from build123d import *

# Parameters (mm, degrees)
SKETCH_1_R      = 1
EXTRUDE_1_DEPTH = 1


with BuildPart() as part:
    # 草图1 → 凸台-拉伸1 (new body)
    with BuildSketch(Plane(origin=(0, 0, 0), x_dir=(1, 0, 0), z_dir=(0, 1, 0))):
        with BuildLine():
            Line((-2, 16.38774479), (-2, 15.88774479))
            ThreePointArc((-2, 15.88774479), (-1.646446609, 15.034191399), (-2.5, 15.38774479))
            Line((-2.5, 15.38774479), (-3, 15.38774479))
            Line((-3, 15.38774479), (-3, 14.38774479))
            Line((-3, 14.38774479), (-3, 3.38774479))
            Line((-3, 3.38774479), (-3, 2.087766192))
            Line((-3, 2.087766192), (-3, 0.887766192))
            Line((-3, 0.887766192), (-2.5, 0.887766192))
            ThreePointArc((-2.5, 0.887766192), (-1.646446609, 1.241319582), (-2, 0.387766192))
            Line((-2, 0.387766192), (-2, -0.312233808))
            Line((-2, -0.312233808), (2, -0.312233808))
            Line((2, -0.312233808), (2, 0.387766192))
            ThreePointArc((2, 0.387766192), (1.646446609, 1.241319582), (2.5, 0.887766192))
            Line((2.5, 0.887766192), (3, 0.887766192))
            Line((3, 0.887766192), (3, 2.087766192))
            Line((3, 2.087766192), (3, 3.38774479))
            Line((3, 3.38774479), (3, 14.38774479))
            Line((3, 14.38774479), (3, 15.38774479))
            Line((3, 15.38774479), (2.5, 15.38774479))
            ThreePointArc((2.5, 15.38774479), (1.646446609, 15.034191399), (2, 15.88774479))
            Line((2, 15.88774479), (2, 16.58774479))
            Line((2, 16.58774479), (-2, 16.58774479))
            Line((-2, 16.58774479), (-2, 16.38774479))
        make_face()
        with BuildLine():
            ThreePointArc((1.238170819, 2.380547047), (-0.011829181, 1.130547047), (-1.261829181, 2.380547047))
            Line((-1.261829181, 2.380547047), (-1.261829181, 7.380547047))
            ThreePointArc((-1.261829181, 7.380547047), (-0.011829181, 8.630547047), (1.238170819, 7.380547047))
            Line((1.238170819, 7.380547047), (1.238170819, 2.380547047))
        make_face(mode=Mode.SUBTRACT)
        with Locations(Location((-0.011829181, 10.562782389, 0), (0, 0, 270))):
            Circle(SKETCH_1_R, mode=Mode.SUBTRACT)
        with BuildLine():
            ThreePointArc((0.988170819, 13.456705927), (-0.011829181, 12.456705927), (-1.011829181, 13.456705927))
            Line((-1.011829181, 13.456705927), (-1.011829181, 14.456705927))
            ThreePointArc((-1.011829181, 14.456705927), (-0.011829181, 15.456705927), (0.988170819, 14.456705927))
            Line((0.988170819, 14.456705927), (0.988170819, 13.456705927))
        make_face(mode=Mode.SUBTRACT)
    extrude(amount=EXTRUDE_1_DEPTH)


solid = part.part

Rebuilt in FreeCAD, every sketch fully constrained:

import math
import FreeCAD as App
import Part
import Sketcher
from FreeCAD import Vector
Q = App.Units.Quantity

doc = App.newDocument("Part")
body = doc.addObject("PartDesign::Body", "Body")

sketch1 = body.newObject("Sketcher::SketchObject", "Sketch")
sketch1.AttachmentSupport = (doc.getObject("XZ_Plane"), [""])
sketch1.MapMode = "FlatFace"
sketch1.addGeometry(Part.ArcOfCircle(Part.Circle(Vector(-2, -15.4, 0), Vector(0, 0, 1), 0.5), math.radians(-90), math.radians(180)), False)
sketch1.addGeometry(Part.LineSegment(Vector(-2.5, -15.4, 0), Vector(-3, -15.4, 0)), False)
sketch1.addGeometry(Part.LineSegment(Vector(-3, -15.4, 0), Vector(-3, -0.9, 0)), False)
sketch1.addGeometry(Part.LineSegment(Vector(-3, -0.9, 0), Vector(-2.5, -0.9, 0)), False)
sketch1.addGeometry(Part.ArcOfCircle(Part.Circle(Vector(-2, -0.9, 0), Vector(0, 0, 1), 0.5), math.radians(180), math.radians(450)), False)
sketch1.addGeometry(Part.LineSegment(Vector(-2, -0.4, 0), Vector(-2, 0.3, 0)), False)
sketch1.addGeometry(Part.LineSegment(Vector(-2, 0.3, 0), Vector(2, 0.3, 0)), False)
sketch1.addGeometry(Part.LineSegment(Vector(2, 0.3, 0), Vector(2, -0.4, 0)), False)
sketch1.addGeometry(Part.ArcOfCircle(Part.Circle(Vector(2, -0.9, 0), Vector(0, 0, 1), 0.5), math.radians(90), math.radians(360)), False)
sketch1.addGeometry(Part.LineSegment(Vector(2.5, -0.9, 0), Vector(3, -0.9, 0)), False)
sketch1.addGeometry(Part.LineSegment(Vector(3, -0.9, 0), Vector(3, -15.4, 0)), False)
sketch1.addGeometry(Part.LineSegment(Vector(3, -15.4, 0), Vector(2.5, -15.4, 0)), False)
sketch1.addGeometry(Part.ArcOfCircle(Part.Circle(Vector(2, -15.4, 0), Vector(0, 0, 1), 0.5), math.radians(0), math.radians(270)), False)
sketch1.addGeometry(Part.LineSegment(Vector(2, -15.9, 0), Vector(2, -16.6, 0)), False)
sketch1.addGeometry(Part.LineSegment(Vector(2, -16.6, 0), Vector(-2, -16.6, 0)), False)
sketch1.addGeometry(Part.LineSegment(Vector(-2, -16.6, 0), Vector(-2, -15.9, 0)), False)
sketch1.addGeometry(Part.LineSegment(Vector(1.2, -7.4, 0), Vector(1.2, -2.4, 0)), False)
sketch1.addGeometry(Part.ArcOfCircle(Part.Circle(Vector(0, -2.4, 0), Vector(0, 0, 1), 1.2), math.radians(0), math.radians(180)), False)
sketch1.addGeometry(Part.LineSegment(Vector(-1.3, -2.4, 0), Vector(-1.3, -7.4, 0)), False)
sketch1.addGeometry(Part.ArcOfCircle(Part.Circle(Vector(0, -7.4, 0), Vector(0, 0, 1), 1.2), math.radians(180), math.radians(360)), False)
sketch1.addGeometry(Part.Circle(Vector(0, -10.6, 0), Vector(0, 0, 1), 1), False)
sketch1.addGeometry(Part.LineSegment(Vector(1, -14.5, 0), Vector(1, -13.5, 0)), False)
sketch1.addGeometry(Part.ArcOfCircle(Part.Circle(Vector(0, -13.5, 0), Vector(0, 0, 1), 1), math.radians(0), math.radians(180)), False)
sketch1.addGeometry(Part.LineSegment(Vector(-1, -13.5, 0), Vector(-1, -14.5, 0)), False)
sketch1.addGeometry(Part.ArcOfCircle(Part.Circle(Vector(0, -14.5, 0), Vector(0, 0, 1), 1), math.radians(180), math.radians(360)), False)
sketch1.addConstraint(Sketcher.Constraint("Coincident", 0, 2, 1, 1))
sketch1.addConstraint(Sketcher.Constraint("Coincident", 1, 2, 2, 1))
sketch1.addConstraint(Sketcher.Constraint("Coincident", 2, 2, 3, 1))
sketch1.addConstraint(Sketcher.Constraint("Coincident", 3, 2, 4, 1))
sketch1.addConstraint(Sketcher.Constraint("Coincident", 4, 2, 5, 1))
sketch1.addConstraint(Sketcher.Constraint("Coincident", 5, 2, 6, 1))
sketch1.addConstraint(Sketcher.Constraint("Coincident", 6, 2, 7, 1))
sketch1.addConstraint(Sketcher.Constraint("Coincident", 7, 2, 8, 1))
sketch1.addConstraint(Sketcher.Constraint("Coincident", 8, 2, 9, 1))
sketch1.addConstraint(Sketcher.Constraint("Coincident", 9, 2, 10, 1))
sketch1.addConstraint(Sketcher.Constraint("Coincident", 10, 2, 11, 1))
sketch1.addConstraint(Sketcher.Constraint("Coincident", 11, 2, 12, 1))
sketch1.addConstraint(Sketcher.Constraint("Coincident", 12, 2, 13, 1))
sketch1.addConstraint(Sketcher.Constraint("Coincident", 13, 2, 14, 1))
sketch1.addConstraint(Sketcher.Constraint("Coincident", 14, 2, 15, 1))
sketch1.addConstraint(Sketcher.Constraint("Coincident", 15, 2, 0, 1))
sketch1.addConstraint(Sketcher.Constraint("Tangent", 16, 2, 17, 1))
sketch1.addConstraint(Sketcher.Constraint("Tangent", 17, 2, 18, 1))
sketch1.addConstraint(Sketcher.Constraint("Tangent", 18, 2, 19, 1))
sketch1.addConstraint(Sketcher.Constraint("Tangent", 19, 2, 16, 1))
sketch1.addConstraint(Sketcher.Constraint("Tangent", 21, 2, 22, 1))
sketch1.addConstraint(Sketcher.Constraint("Tangent", 22, 2, 23, 1))
sketch1.addConstraint(Sketcher.Constraint("Tangent", 23, 2, 24, 1))
sketch1.addConstraint(Sketcher.Constraint("Tangent", 24, 2, 21, 1))
sketch1.addConstraint(Sketcher.Constraint("Horizontal", 1))
sketch1.addConstraint(Sketcher.Constraint("Vertical", 2))
sketch1.addConstraint(Sketcher.Constraint("Horizontal", 3))
sketch1.addConstraint(Sketcher.Constraint("Vertical", 5))
sketch1.addConstraint(Sketcher.Constraint("Horizontal", 6))
sketch1.addConstraint(Sketcher.Constraint("Vertical", 7))
sketch1.addConstraint(Sketcher.Constraint("Horizontal", 9))
sketch1.addConstraint(Sketcher.Constraint("Vertical", 10))
sketch1.addConstraint(Sketcher.Constraint("Horizontal", 11))
sketch1.addConstraint(Sketcher.Constraint("Vertical", 13))
sketch1.addConstraint(Sketcher.Constraint("Horizontal", 14))
sketch1.addConstraint(Sketcher.Constraint("Vertical", 15))
sketch1.addConstraint(Sketcher.Constraint("Vertical", 16))
sketch1.addConstraint(Sketcher.Constraint("Vertical", 18))
sketch1.addConstraint(Sketcher.Constraint("Vertical", 21))
sketch1.addConstraint(Sketcher.Constraint("Vertical", 23))
sketch1.addConstraint(Sketcher.Constraint("Equal", 0, 4))
sketch1.addConstraint(Sketcher.Constraint("Equal", 4, 8))
sketch1.addConstraint(Sketcher.Constraint("Equal", 8, 12))
sketch1.addConstraint(Sketcher.Constraint("Equal", 20, 22))
sketch1.addConstraint(Sketcher.Constraint("Symmetric", 4, 3, 8, 3, -2))
sketch1.addConstraint(Sketcher.Constraint("Symmetric", 0, 3, 12, 3, -2))
sketch1.addConstraint(Sketcher.Constraint("Symmetric", 2, 2, 9, 2, -2))
sketch1.addConstraint(Sketcher.Constraint("Horizontal", 12, 3, 0, 2))
sketch1.addConstraint(Sketcher.Constraint("Horizontal", 8, 3, 2, 2))
sketch1.addConstraint(Sketcher.Constraint("Horizontal", 1, 2, 10, 2))
sketch1.addConstraint(Sketcher.Constraint("Vertical", 0, 3, 4, 3))
sketch1.addConstraint(Sketcher.Constraint("Vertical", 19, 3, 20, 3))
sketch1.addConstraint(Sketcher.Constraint("Vertical", 20, 3, 22, 3))
sketch1.addConstraint(Sketcher.Constraint("Vertical", 0, 3, 4, 2))
sketch1.addConstraint(Sketcher.Constraint("Vertical", 12, 3, 6, 2))
sketch1.addConstraint(Sketcher.Constraint("Vertical", 7, 2, 12, 2))
sketch1.addConstraint(Sketcher.Constraint("Vertical", 5, 2, 14, 2))
sketch1.addConstraint(Sketcher.Constraint("Equal", 7, 13))
sketch1.addConstraint(Sketcher.Constraint("Diameter", 20, Q("2 mm")))
sketch1.addConstraint(Sketcher.Constraint("Radius", 0, Q("0.5 mm")))
sketch1.addConstraint(Sketcher.Constraint("DistanceX", 6, 1, 6, 2, Q("4 mm")))
sketch1.addConstraint(Sketcher.Constraint("DistanceY", 16, 1, 16, 2, Q("5 mm")))
sketch1.addConstraint(Sketcher.Constraint("DistanceY", 21, 1, 21, 2, Q("1 mm")))
sketch1.addConstraint(Sketcher.Constraint("Radius", 17, Q("1.25 mm")))
sketch1.addConstraint(Sketcher.Constraint("DistanceX", 1, 2, 1, 1, Q("0.5 mm")))
sketch1.addConstraint(Sketcher.Constraint("DistanceY", 5, 1, 5, 2, Q("0.7 mm")))
sketch1.addConstraint(Sketcher.Constraint("DistanceY", 2, 1, 2, 2, Q("14.499979 mm")))
sketch1.addConstraint(Sketcher.Constraint("DistanceX", 17, 3, -1, 1, Q("0.011829 mm")))
sketch1.addConstraint(Sketcher.Constraint("DistanceY", 17, 3, 4, 3, Q("1.492781 mm")))
sketch1.addConstraint(Sketcher.Constraint("DistanceY", 0, 3, 22, 3, Q("1.931039 mm")))
sketch1.addConstraint(Sketcher.Constraint("DistanceY", 0, 3, -1, 1, Q("15.387745 mm")))
sketch1.addConstraint(Sketcher.Constraint("DistanceY", 20, 3, -1, 1, Q("10.562782 mm")))
pad1 = body.newObject("PartDesign::Pad", "Pad")
pad1.Profile = sketch1
pad1.Length = 1
pad1.Reversed = True

doc.recompute()
